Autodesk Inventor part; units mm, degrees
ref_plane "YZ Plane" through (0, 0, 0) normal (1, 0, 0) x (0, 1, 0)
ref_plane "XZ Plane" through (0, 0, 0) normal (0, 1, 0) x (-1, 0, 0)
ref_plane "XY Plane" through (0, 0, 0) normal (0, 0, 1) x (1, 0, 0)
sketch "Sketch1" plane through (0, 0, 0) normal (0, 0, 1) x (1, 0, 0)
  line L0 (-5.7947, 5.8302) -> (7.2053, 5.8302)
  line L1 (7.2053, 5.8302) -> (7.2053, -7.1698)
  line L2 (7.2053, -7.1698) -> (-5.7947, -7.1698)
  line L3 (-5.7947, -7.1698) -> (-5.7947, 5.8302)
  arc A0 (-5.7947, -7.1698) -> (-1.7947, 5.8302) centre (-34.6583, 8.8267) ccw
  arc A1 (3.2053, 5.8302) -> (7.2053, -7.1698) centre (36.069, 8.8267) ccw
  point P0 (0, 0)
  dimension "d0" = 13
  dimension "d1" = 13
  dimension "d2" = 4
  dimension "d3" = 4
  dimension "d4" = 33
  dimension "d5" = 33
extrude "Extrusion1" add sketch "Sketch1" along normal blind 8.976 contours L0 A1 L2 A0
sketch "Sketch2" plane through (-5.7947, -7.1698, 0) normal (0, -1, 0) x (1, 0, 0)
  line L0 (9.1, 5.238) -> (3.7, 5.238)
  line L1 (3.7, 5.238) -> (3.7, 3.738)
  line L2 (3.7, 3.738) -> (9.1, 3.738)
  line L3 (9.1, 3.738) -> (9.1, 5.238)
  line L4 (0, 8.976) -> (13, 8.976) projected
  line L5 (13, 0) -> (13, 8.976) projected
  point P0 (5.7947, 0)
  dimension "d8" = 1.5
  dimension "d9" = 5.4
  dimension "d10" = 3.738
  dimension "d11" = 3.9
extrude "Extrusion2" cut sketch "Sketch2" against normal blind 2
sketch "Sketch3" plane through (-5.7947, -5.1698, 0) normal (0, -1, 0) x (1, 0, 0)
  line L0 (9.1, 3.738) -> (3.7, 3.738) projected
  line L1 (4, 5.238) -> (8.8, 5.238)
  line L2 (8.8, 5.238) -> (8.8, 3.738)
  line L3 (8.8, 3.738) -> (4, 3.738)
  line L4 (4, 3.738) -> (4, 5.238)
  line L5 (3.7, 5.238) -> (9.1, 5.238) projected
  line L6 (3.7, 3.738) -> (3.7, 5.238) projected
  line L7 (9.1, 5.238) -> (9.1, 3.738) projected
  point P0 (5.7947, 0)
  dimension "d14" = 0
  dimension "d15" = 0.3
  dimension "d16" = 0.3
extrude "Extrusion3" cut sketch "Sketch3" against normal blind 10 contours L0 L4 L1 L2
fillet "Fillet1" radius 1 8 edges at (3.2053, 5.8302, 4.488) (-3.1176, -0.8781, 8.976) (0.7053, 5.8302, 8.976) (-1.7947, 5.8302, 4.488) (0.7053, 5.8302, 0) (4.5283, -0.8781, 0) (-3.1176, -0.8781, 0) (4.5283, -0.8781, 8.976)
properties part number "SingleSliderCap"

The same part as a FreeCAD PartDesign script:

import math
import FreeCAD as App
import Part
import Sketcher
Q = App.Units.Quantity


def edges_at(feature, points):
    """Names of the edges that pass closest to the given points."""
    edges = feature.Shape.Edges
    near = lambda p: min(range(len(edges)), key=lambda i: edges[i].distToShape(Part.Vertex(*p))[0])
    return sorted({f"Edge{near(p) + 1}" for p in points})

doc = App.newDocument("Part")
body = doc.addObject("PartDesign::Body", "Body")

sketch1 = body.newObject("Sketcher::SketchObject", "Sketch")
sketch1.AttachmentSupport = (doc.getObject("XY_Plane"), [""])
sketch1.MapMode = "FlatFace"
sketch1.addGeometry(Part.LineSegment(App.Vector(3, 6, 0), App.Vector(-2, 6, 0)), False)
sketch1.addGeometry(Part.ArcOfCircle(Part.Circle(App.Vector(-35, 9, 0), App.Vector(0, 0, 1), 33), math.radians(-29), math.radians(-5)), False)
sketch1.addGeometry(Part.LineSegment(App.Vector(-6, -7, 0), App.Vector(7, -7, 0)), False)
sketch1.addGeometry(Part.ArcOfCircle(Part.Circle(App.Vector(36, 9, 0), App.Vector(0, 0, 1), 33), math.radians(-175), math.radians(-151)), False)
sketch1.addConstraint(Sketcher.Constraint("Coincident", 0, 2, 1, 2))
sketch1.addConstraint(Sketcher.Constraint("Coincident", 1, 1, 2, 1))
sketch1.addConstraint(Sketcher.Constraint("Coincident", 2, 2, 3, 2))
sketch1.addConstraint(Sketcher.Constraint("Coincident", 3, 1, 0, 1))
sketch1.addConstraint(Sketcher.Constraint("Horizontal", 0))
sketch1.addConstraint(Sketcher.Constraint("Horizontal", 2))
sketch1.addConstraint(Sketcher.Constraint("Equal", 1, 3))
sketch1.addConstraint(Sketcher.Constraint("Horizontal", 1, 3, 3, 3))
sketch1.addConstraint(Sketcher.Constraint("Radius", 1, Q("33 mm")))
sketch1.addConstraint(Sketcher.Constraint("DistanceX", 2, 1, 2, 2, Q("13 mm")))
sketch1.addConstraint(Sketcher.Constraint("DistanceX", 1, 1, 0, 2, Q("4 mm")))
sketch1.addConstraint(Sketcher.Constraint("DistanceY", 1, 1, 0, 2, Q("13 mm")))
sketch1.addConstraint(Sketcher.Constraint("DistanceX", -1, 1, 3, 3, Q("36.069 mm")))
sketch1.addConstraint(Sketcher.Constraint("DistanceY", -1, 1, 1, 3, Q("8.8267 mm")))
pad1 = body.newObject("PartDesign::Pad", "Pad")
pad1.Profile = sketch1
pad1.Length = 8.976

sketch2 = body.newObject("Sketcher::SketchObject", "Sketch001")
sketch2.AttachmentSupport = (doc.getObject("XZ_Plane"), [""])
sketch2.MapMode = "FlatFace"
sketch2.AttachmentOffset = App.Placement(App.Vector(0, 0, 7.1698), App.Rotation())
sketch2.addGeometry(Part.LineSegment(App.Vector(3.3, 3.7, 0), App.Vector(3.3, 5.2, 0)), False)
sketch2.addGeometry(Part.LineSegment(App.Vector(3.3, 5.2, 0), App.Vector(-2.1, 5.2, 0)), False)
sketch2.addGeometry(Part.LineSegment(App.Vector(-2.1, 5.2, 0), App.Vector(-2.1, 3.7, 0)), False)
sketch2.addGeometry(Part.LineSegment(App.Vector(-2.1, 3.7, 0), App.Vector(3.3, 3.7, 0)), False)
sketch2.addConstraint(Sketcher.Constraint("Coincident", 0, 2, 1, 1))
sketch2.addConstraint(Sketcher.Constraint("Coincident", 1, 2, 2, 1))
sketch2.addConstraint(Sketcher.Constraint("Coincident", 2, 2, 3, 1))
sketch2.addConstraint(Sketcher.Constraint("Coincident", 3, 2, 0, 1))
sketch2.addConstraint(Sketcher.Constraint("Vertical", 0))
sketch2.addConstraint(Sketcher.Constraint("Horizontal", 1))
sketch2.addConstraint(Sketcher.Constraint("Vertical", 2))
sketch2.addConstraint(Sketcher.Constraint("Horizontal", 3))
sketch2.addConstraint(Sketcher.Constraint("DistanceX", 1, 2, 1, 1, Q("5.4 mm")))
sketch2.addConstraint(Sketcher.Constraint("DistanceY", 0, 1, 0, 2, Q("1.5 mm")))
sketch2.addConstraint(Sketcher.Constraint("DistanceY", -1, 1, 2, 2, Q("3.738 mm")))
sketch2.addConstraint(Sketcher.Constraint("DistanceX", -1, 1, 0, 2, Q("3.3053 mm")))
pocket1 = body.newObject("PartDesign::Pocket", "Pocket")
pocket1.Profile = sketch2
pocket1.Length = 2

sketch3 = body.newObject("Sketcher::SketchObject", "Sketch002")
sketch3.AttachmentSupport = (doc.getObject("XZ_Plane"), [""])
sketch3.MapMode = "FlatFace"
sketch3.AttachmentOffset = App.Placement(App.Vector(0, 0, 5.1698), App.Rotation())
sketch3.addGeometry(Part.LineSegment(App.Vector(-1.8, 3.7, 0), App.Vector(3, 3.7, 0)), False)
sketch3.addGeometry(Part.LineSegment(App.Vector(3, 3.7, 0), App.Vector(3, 5.2, 0)), False)
sketch3.addGeometry(Part.LineSegment(App.Vector(3, 5.2, 0), App.Vector(-1.8, 5.2, 0)), False)
sketch3.addGeometry(Part.LineSegment(App.Vector(-1.8, 5.2, 0), App.Vector(-1.8, 3.7, 0)), False)
sketch3.addConstraint(Sketcher.Constraint("Coincident", 0, 2, 1, 1))
sketch3.addConstraint(Sketcher.Constraint("Coincident", 1, 2, 2, 1))
sketch3.addConstraint(Sketcher.Constraint("Coincident", 2, 2, 3, 1))
sketch3.addConstraint(Sketcher.Constraint("Coincident", 3, 2, 0, 1))
sketch3.addConstraint(Sketcher.Constraint("Horizontal", 0))
sketch3.addConstraint(Sketcher.Constraint("Vertical", 1))
sketch3.addConstraint(Sketcher.Constraint("Horizontal", 2))
sketch3.addConstraint(Sketcher.Constraint("Vertical", 3))
sketch3.addConstraint(Sketcher.Constraint("DistanceX", 0, 1, 0, 2, Q("4.8 mm")))
sketch3.addConstraint(Sketcher.Constraint("DistanceY", 1, 1, 1, 2, Q("1.5 mm")))
sketch3.addConstraint(Sketcher.Constraint("DistanceY", -1, 1, 0, 2, Q("3.738 mm")))
sketch3.addConstraint(Sketcher.Constraint("DistanceX", -1, 1, 0, 2, Q("3.0053 mm")))
pocket2 = body.newObject("PartDesign::Pocket", "Pocket001")
pocket2.Profile = sketch3
pocket2.Length = 10
doc.recompute()

fillet = body.newObject("PartDesign::Fillet", "Fillet")
fillet.Base = (pocket2, edges_at(pocket2, [
    (3.205, 5.83, 4.488),
    (-3.118, -0.878, 8.976),
    (0.705, 5.83, 8.976),
    (-1.795, 5.83, 4.488),
    (0.705, 5.83, 0),
    (4.528, -0.878, 0),
    (-3.118, -0.878, 0),
    (4.528, -0.878, 8.976),
]))
fillet.Radius = 1

doc.recompute()
